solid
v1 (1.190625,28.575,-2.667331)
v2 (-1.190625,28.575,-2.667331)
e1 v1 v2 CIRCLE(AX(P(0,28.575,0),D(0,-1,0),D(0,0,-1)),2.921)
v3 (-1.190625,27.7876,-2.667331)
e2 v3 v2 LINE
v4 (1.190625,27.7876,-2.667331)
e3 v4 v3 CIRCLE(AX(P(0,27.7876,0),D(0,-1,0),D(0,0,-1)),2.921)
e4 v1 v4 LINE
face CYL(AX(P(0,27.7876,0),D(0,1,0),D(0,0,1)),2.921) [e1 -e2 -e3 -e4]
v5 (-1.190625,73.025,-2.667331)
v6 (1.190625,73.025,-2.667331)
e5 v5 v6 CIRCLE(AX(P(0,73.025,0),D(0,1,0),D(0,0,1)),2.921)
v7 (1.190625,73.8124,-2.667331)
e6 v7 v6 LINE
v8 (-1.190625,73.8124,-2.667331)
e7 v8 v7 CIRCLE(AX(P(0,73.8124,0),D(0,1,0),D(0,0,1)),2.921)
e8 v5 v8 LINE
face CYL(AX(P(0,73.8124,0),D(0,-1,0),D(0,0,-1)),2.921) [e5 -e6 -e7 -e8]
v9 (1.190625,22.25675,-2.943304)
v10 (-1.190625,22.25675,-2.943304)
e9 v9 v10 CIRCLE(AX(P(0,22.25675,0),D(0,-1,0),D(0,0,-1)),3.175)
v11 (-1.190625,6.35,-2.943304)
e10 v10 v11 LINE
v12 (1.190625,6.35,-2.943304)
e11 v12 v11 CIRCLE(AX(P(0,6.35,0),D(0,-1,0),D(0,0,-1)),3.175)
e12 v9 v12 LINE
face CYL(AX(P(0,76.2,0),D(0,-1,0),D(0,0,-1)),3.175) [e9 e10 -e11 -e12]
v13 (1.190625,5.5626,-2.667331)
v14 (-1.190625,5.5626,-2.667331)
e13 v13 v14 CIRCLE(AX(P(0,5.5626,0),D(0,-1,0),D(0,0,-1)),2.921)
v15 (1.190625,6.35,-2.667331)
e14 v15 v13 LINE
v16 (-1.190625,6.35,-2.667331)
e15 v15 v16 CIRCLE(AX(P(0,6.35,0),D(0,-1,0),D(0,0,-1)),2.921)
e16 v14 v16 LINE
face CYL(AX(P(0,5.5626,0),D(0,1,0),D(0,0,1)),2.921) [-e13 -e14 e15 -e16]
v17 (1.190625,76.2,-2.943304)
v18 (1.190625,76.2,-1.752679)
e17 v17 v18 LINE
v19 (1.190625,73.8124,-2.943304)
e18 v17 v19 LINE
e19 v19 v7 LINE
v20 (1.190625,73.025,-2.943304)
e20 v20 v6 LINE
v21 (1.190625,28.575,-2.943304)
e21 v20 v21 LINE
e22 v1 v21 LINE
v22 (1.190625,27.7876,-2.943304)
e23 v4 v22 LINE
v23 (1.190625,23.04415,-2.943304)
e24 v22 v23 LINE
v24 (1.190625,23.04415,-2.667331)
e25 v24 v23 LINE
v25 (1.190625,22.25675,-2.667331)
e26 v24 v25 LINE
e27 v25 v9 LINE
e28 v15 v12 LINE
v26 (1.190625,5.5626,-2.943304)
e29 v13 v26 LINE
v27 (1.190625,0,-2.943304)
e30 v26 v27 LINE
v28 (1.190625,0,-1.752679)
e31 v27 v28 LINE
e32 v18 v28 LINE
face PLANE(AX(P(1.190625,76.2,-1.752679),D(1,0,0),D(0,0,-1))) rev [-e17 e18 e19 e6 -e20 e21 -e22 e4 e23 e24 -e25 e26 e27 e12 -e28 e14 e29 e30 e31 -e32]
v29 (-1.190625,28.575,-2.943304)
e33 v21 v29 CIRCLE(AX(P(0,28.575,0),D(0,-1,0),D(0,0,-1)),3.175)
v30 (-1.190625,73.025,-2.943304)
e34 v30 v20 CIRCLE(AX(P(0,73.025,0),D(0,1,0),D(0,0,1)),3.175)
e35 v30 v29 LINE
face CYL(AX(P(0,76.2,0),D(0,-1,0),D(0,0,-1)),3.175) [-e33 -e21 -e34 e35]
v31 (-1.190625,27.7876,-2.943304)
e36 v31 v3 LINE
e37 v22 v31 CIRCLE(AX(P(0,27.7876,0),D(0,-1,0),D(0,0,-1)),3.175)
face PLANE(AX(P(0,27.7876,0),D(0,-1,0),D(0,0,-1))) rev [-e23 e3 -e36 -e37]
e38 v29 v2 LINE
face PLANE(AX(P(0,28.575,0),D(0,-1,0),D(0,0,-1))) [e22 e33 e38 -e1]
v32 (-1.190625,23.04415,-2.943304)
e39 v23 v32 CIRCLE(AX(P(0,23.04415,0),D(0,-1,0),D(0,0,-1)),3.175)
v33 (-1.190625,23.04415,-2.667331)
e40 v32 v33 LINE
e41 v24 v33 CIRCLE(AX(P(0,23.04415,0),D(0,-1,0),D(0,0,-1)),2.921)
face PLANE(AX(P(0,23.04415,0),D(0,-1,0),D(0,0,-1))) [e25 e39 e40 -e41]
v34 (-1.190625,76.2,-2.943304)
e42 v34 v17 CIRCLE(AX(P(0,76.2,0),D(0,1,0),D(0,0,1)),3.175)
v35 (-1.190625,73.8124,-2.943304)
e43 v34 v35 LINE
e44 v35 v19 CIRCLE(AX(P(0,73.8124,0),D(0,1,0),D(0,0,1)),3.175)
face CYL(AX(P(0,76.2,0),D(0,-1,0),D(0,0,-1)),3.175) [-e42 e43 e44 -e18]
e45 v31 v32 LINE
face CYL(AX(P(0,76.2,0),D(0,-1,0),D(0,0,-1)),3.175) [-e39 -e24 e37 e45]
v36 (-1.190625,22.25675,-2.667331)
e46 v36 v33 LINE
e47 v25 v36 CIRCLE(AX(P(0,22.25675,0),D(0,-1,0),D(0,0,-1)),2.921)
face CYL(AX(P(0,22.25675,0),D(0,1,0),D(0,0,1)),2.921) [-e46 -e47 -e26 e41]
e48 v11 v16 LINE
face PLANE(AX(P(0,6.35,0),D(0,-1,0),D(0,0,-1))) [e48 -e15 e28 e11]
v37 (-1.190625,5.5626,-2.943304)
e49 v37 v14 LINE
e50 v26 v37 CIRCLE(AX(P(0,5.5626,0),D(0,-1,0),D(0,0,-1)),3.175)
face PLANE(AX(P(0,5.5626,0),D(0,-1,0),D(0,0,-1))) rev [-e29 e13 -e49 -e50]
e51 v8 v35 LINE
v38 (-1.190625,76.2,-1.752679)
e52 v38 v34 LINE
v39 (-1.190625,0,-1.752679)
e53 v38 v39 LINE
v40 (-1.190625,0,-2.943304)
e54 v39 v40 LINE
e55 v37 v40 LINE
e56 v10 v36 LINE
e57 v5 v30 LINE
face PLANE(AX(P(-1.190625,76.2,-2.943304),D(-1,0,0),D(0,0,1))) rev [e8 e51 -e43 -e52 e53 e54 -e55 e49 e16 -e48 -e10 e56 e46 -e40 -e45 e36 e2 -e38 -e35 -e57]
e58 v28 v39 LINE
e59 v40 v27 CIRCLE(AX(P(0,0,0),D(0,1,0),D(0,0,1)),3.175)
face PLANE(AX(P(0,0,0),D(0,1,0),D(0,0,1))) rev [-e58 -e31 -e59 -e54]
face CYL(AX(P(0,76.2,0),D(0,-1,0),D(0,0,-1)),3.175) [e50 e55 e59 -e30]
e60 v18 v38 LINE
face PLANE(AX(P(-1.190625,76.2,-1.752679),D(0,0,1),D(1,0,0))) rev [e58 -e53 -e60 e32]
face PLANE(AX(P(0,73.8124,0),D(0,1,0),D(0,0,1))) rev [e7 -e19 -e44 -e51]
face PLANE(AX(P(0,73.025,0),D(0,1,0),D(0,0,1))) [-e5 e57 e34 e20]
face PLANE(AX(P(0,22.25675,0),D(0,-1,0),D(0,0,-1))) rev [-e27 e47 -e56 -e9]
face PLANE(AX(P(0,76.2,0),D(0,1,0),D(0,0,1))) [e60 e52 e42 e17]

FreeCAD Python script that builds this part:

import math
import FreeCAD as App
import Part
import Sketcher

V = App.Vector
Q = App.Units.Quantity

doc = App.newDocument("Part")
body = doc.addObject("PartDesign::Body", "Body")

sketch1 = doc.addObject("Sketcher::SketchObject", "Sketch")
body.addObject(sketch1)
sketch1.AttachmentSupport = (doc.XZ_Plane, [""])
sketch1.MapMode = "FlatFace"
sketch1.addGeometry([
    Part.LineSegment(V(-1.2, -1.8, 0), V(-1.2, -2.9, 0)),
    Part.ArcOfCircle(Part.Circle(V(0, 0, 0), V(0, 0, 1), 3.2), math.radians(-68), math.radians(248)),
    Part.LineSegment(V(1.2, -2.9, 0), V(1.2, -1.8, 0)),
    Part.LineSegment(V(1.2, -1.8, 0), V(-1.2, -1.8, 0)),
], False)
sketch1.addConstraint([
    Sketcher.Constraint("Coincident", 0, 2, 1, 2),
    Sketcher.Constraint("Coincident", 1, 1, 2, 1),
    Sketcher.Constraint("Coincident", 2, 2, 3, 1),
    Sketcher.Constraint("Coincident", 3, 2, 0, 1),
    Sketcher.Constraint("Vertical", 0),
    Sketcher.Constraint("Vertical", 2),
    Sketcher.Constraint("Horizontal", 3),
    Sketcher.Constraint("Coincident", 1, 3, -1, 1),
    Sketcher.Constraint("Horizontal", 0, 2, 1, 1),
    Sketcher.Constraint("Radius", 1, Q("0.125 in")),
    Sketcher.Constraint("DistanceX", 3, 2, 3, 1, Q("0.09375 in")),
    Sketcher.Constraint("DistanceY", 0, 2, 0, 1, Q("0.046875 in")),
])
pad1 = doc.addObject("PartDesign::Pad", "Pad")
body.addObject(pad1)
pad1.Profile = sketch1
pad1.Length = Q("3 in")
pad1.Reversed = True

sketch2 = doc.addObject("Sketcher::SketchObject", "Sketch001")
body.addObject(sketch2)
sketch2.AttachmentSupport = (doc.XZ_Plane, [""])
sketch2.MapMode = "FlatFace"
sketch2.AttachmentOffset = App.Placement(V(0, 0, -2.875 * 25.4), App.Rotation())
sketch2.addGeometry([
    Part.Circle(V(0, 0, 0), V(0, 0, 1), 3.2),
    Part.Circle(V(0, 0, 0), V(0, 0, 1), 2.9),
], False)
sketch2.addConstraint([
    Sketcher.Constraint("Coincident", 0, 3, -1, 1),
    Sketcher.Constraint("Coincident", 1, 3, -1, 1),
    Sketcher.Constraint("Diameter", 0, Q("0.25 in")),
    Sketcher.Constraint("Diameter", 1, Q("0.23 in")),
])
pocket1 = doc.addObject("PartDesign::Pocket", "Pocket")
body.addObject(pocket1)
pocket1.Profile = sketch2
pocket1.Length = Q("0.031 in")

sketch3 = doc.addObject("Sketcher::SketchObject", "Sketch002")
body.addObject(sketch3)
sketch3.AttachmentSupport = (doc.XZ_Plane, [""])
sketch3.MapMode = "FlatFace"
sketch3.AttachmentOffset = App.Placement(V(0, 0, -0.25 * 25.4), App.Rotation())
sketch3.addGeometry([
    Part.Circle(V(0, 0, 0), V(0, 0, 1), 3.2),
    Part.Circle(V(0, 0, 0), V(0, 0, 1), 2.9),
], False)
sketch3.addConstraint([
    Sketcher.Constraint("Coincident", 0, 3, -1, 1),
    Sketcher.Constraint("Coincident", 1, 3, -1, 1),
    Sketcher.Constraint("Diameter", 0, Q("0.25 in")),
    Sketcher.Constraint("Diameter", 1, Q("0.23 in")),
])
pocket2 = doc.addObject("PartDesign::Pocket", "Pocket001")
body.addObject(pocket2)
pocket2.Profile = sketch3
pocket2.Length = Q("0.031 in")
pocket2.Reversed = True

sketch4 = doc.addObject("Sketcher::SketchObject", "Sketch003")
body.addObject(sketch4)
sketch4.AttachmentSupport = (doc.XZ_Plane, [""])
sketch4.MapMode = "FlatFace"
sketch4.AttachmentOffset = App.Placement(V(0, 0, -23.04415), App.Rotation())
sketch4.addGeometry([
    Part.Circle(V(0, 0, 0), V(0, 0, 1), 3.2),
    Part.Circle(V(0, 0, 0), V(0, 0, 1), 2.9),
], False)
sketch4.addConstraint([
    Sketcher.Constraint("Coincident", 0, 3, -1, 1),
    Sketcher.Constraint("Coincident", 1, 3, -1, 1),
    Sketcher.Constraint("Diameter", 0, Q("0.25 in")),
    Sketcher.Constraint("Diameter", 1, Q("0.23 in")),
])
pocket3 = doc.addObject("PartDesign::Pocket", "Pocket002")
body.addObject(pocket3)
pocket3.Profile = sketch4
pocket3.Length = Q("0.031 in")
pocket3.Reversed = True

sketch5 = doc.addObject("Sketcher::SketchObject", "Sketch004")
body.addObject(sketch5)
sketch5.AttachmentSupport = (doc.XZ_Plane, [""])
sketch5.MapMode = "FlatFace"
sketch5.AttachmentOffset = App.Placement(V(0, 0, -1.125 * 25.4), App.Rotation())
sketch5.addGeometry([
    Part.Circle(V(0, 0, 0), V(0, 0, 1), 3.2),
    Part.Circle(V(0, 0, 0), V(0, 0, 1), 2.9),
], False)
sketch5.addConstraint([
    Sketcher.Constraint("Coincident", 0, 3, -1, 1),
    Sketcher.Constraint("Coincident", 1, 3, -1, 1),
    Sketcher.Constraint("Diameter", 0, Q("0.25 in")),
    Sketcher.Constraint("Diameter", 1, Q("0.23 in")),
])
pocket4 = doc.addObject("PartDesign::Pocket", "Pocket003")
body.addObject(pocket4)
pocket4.Profile = sketch5
pocket4.Length = Q("0.031 in")
pocket4.Reversed = True

doc.recompute()
